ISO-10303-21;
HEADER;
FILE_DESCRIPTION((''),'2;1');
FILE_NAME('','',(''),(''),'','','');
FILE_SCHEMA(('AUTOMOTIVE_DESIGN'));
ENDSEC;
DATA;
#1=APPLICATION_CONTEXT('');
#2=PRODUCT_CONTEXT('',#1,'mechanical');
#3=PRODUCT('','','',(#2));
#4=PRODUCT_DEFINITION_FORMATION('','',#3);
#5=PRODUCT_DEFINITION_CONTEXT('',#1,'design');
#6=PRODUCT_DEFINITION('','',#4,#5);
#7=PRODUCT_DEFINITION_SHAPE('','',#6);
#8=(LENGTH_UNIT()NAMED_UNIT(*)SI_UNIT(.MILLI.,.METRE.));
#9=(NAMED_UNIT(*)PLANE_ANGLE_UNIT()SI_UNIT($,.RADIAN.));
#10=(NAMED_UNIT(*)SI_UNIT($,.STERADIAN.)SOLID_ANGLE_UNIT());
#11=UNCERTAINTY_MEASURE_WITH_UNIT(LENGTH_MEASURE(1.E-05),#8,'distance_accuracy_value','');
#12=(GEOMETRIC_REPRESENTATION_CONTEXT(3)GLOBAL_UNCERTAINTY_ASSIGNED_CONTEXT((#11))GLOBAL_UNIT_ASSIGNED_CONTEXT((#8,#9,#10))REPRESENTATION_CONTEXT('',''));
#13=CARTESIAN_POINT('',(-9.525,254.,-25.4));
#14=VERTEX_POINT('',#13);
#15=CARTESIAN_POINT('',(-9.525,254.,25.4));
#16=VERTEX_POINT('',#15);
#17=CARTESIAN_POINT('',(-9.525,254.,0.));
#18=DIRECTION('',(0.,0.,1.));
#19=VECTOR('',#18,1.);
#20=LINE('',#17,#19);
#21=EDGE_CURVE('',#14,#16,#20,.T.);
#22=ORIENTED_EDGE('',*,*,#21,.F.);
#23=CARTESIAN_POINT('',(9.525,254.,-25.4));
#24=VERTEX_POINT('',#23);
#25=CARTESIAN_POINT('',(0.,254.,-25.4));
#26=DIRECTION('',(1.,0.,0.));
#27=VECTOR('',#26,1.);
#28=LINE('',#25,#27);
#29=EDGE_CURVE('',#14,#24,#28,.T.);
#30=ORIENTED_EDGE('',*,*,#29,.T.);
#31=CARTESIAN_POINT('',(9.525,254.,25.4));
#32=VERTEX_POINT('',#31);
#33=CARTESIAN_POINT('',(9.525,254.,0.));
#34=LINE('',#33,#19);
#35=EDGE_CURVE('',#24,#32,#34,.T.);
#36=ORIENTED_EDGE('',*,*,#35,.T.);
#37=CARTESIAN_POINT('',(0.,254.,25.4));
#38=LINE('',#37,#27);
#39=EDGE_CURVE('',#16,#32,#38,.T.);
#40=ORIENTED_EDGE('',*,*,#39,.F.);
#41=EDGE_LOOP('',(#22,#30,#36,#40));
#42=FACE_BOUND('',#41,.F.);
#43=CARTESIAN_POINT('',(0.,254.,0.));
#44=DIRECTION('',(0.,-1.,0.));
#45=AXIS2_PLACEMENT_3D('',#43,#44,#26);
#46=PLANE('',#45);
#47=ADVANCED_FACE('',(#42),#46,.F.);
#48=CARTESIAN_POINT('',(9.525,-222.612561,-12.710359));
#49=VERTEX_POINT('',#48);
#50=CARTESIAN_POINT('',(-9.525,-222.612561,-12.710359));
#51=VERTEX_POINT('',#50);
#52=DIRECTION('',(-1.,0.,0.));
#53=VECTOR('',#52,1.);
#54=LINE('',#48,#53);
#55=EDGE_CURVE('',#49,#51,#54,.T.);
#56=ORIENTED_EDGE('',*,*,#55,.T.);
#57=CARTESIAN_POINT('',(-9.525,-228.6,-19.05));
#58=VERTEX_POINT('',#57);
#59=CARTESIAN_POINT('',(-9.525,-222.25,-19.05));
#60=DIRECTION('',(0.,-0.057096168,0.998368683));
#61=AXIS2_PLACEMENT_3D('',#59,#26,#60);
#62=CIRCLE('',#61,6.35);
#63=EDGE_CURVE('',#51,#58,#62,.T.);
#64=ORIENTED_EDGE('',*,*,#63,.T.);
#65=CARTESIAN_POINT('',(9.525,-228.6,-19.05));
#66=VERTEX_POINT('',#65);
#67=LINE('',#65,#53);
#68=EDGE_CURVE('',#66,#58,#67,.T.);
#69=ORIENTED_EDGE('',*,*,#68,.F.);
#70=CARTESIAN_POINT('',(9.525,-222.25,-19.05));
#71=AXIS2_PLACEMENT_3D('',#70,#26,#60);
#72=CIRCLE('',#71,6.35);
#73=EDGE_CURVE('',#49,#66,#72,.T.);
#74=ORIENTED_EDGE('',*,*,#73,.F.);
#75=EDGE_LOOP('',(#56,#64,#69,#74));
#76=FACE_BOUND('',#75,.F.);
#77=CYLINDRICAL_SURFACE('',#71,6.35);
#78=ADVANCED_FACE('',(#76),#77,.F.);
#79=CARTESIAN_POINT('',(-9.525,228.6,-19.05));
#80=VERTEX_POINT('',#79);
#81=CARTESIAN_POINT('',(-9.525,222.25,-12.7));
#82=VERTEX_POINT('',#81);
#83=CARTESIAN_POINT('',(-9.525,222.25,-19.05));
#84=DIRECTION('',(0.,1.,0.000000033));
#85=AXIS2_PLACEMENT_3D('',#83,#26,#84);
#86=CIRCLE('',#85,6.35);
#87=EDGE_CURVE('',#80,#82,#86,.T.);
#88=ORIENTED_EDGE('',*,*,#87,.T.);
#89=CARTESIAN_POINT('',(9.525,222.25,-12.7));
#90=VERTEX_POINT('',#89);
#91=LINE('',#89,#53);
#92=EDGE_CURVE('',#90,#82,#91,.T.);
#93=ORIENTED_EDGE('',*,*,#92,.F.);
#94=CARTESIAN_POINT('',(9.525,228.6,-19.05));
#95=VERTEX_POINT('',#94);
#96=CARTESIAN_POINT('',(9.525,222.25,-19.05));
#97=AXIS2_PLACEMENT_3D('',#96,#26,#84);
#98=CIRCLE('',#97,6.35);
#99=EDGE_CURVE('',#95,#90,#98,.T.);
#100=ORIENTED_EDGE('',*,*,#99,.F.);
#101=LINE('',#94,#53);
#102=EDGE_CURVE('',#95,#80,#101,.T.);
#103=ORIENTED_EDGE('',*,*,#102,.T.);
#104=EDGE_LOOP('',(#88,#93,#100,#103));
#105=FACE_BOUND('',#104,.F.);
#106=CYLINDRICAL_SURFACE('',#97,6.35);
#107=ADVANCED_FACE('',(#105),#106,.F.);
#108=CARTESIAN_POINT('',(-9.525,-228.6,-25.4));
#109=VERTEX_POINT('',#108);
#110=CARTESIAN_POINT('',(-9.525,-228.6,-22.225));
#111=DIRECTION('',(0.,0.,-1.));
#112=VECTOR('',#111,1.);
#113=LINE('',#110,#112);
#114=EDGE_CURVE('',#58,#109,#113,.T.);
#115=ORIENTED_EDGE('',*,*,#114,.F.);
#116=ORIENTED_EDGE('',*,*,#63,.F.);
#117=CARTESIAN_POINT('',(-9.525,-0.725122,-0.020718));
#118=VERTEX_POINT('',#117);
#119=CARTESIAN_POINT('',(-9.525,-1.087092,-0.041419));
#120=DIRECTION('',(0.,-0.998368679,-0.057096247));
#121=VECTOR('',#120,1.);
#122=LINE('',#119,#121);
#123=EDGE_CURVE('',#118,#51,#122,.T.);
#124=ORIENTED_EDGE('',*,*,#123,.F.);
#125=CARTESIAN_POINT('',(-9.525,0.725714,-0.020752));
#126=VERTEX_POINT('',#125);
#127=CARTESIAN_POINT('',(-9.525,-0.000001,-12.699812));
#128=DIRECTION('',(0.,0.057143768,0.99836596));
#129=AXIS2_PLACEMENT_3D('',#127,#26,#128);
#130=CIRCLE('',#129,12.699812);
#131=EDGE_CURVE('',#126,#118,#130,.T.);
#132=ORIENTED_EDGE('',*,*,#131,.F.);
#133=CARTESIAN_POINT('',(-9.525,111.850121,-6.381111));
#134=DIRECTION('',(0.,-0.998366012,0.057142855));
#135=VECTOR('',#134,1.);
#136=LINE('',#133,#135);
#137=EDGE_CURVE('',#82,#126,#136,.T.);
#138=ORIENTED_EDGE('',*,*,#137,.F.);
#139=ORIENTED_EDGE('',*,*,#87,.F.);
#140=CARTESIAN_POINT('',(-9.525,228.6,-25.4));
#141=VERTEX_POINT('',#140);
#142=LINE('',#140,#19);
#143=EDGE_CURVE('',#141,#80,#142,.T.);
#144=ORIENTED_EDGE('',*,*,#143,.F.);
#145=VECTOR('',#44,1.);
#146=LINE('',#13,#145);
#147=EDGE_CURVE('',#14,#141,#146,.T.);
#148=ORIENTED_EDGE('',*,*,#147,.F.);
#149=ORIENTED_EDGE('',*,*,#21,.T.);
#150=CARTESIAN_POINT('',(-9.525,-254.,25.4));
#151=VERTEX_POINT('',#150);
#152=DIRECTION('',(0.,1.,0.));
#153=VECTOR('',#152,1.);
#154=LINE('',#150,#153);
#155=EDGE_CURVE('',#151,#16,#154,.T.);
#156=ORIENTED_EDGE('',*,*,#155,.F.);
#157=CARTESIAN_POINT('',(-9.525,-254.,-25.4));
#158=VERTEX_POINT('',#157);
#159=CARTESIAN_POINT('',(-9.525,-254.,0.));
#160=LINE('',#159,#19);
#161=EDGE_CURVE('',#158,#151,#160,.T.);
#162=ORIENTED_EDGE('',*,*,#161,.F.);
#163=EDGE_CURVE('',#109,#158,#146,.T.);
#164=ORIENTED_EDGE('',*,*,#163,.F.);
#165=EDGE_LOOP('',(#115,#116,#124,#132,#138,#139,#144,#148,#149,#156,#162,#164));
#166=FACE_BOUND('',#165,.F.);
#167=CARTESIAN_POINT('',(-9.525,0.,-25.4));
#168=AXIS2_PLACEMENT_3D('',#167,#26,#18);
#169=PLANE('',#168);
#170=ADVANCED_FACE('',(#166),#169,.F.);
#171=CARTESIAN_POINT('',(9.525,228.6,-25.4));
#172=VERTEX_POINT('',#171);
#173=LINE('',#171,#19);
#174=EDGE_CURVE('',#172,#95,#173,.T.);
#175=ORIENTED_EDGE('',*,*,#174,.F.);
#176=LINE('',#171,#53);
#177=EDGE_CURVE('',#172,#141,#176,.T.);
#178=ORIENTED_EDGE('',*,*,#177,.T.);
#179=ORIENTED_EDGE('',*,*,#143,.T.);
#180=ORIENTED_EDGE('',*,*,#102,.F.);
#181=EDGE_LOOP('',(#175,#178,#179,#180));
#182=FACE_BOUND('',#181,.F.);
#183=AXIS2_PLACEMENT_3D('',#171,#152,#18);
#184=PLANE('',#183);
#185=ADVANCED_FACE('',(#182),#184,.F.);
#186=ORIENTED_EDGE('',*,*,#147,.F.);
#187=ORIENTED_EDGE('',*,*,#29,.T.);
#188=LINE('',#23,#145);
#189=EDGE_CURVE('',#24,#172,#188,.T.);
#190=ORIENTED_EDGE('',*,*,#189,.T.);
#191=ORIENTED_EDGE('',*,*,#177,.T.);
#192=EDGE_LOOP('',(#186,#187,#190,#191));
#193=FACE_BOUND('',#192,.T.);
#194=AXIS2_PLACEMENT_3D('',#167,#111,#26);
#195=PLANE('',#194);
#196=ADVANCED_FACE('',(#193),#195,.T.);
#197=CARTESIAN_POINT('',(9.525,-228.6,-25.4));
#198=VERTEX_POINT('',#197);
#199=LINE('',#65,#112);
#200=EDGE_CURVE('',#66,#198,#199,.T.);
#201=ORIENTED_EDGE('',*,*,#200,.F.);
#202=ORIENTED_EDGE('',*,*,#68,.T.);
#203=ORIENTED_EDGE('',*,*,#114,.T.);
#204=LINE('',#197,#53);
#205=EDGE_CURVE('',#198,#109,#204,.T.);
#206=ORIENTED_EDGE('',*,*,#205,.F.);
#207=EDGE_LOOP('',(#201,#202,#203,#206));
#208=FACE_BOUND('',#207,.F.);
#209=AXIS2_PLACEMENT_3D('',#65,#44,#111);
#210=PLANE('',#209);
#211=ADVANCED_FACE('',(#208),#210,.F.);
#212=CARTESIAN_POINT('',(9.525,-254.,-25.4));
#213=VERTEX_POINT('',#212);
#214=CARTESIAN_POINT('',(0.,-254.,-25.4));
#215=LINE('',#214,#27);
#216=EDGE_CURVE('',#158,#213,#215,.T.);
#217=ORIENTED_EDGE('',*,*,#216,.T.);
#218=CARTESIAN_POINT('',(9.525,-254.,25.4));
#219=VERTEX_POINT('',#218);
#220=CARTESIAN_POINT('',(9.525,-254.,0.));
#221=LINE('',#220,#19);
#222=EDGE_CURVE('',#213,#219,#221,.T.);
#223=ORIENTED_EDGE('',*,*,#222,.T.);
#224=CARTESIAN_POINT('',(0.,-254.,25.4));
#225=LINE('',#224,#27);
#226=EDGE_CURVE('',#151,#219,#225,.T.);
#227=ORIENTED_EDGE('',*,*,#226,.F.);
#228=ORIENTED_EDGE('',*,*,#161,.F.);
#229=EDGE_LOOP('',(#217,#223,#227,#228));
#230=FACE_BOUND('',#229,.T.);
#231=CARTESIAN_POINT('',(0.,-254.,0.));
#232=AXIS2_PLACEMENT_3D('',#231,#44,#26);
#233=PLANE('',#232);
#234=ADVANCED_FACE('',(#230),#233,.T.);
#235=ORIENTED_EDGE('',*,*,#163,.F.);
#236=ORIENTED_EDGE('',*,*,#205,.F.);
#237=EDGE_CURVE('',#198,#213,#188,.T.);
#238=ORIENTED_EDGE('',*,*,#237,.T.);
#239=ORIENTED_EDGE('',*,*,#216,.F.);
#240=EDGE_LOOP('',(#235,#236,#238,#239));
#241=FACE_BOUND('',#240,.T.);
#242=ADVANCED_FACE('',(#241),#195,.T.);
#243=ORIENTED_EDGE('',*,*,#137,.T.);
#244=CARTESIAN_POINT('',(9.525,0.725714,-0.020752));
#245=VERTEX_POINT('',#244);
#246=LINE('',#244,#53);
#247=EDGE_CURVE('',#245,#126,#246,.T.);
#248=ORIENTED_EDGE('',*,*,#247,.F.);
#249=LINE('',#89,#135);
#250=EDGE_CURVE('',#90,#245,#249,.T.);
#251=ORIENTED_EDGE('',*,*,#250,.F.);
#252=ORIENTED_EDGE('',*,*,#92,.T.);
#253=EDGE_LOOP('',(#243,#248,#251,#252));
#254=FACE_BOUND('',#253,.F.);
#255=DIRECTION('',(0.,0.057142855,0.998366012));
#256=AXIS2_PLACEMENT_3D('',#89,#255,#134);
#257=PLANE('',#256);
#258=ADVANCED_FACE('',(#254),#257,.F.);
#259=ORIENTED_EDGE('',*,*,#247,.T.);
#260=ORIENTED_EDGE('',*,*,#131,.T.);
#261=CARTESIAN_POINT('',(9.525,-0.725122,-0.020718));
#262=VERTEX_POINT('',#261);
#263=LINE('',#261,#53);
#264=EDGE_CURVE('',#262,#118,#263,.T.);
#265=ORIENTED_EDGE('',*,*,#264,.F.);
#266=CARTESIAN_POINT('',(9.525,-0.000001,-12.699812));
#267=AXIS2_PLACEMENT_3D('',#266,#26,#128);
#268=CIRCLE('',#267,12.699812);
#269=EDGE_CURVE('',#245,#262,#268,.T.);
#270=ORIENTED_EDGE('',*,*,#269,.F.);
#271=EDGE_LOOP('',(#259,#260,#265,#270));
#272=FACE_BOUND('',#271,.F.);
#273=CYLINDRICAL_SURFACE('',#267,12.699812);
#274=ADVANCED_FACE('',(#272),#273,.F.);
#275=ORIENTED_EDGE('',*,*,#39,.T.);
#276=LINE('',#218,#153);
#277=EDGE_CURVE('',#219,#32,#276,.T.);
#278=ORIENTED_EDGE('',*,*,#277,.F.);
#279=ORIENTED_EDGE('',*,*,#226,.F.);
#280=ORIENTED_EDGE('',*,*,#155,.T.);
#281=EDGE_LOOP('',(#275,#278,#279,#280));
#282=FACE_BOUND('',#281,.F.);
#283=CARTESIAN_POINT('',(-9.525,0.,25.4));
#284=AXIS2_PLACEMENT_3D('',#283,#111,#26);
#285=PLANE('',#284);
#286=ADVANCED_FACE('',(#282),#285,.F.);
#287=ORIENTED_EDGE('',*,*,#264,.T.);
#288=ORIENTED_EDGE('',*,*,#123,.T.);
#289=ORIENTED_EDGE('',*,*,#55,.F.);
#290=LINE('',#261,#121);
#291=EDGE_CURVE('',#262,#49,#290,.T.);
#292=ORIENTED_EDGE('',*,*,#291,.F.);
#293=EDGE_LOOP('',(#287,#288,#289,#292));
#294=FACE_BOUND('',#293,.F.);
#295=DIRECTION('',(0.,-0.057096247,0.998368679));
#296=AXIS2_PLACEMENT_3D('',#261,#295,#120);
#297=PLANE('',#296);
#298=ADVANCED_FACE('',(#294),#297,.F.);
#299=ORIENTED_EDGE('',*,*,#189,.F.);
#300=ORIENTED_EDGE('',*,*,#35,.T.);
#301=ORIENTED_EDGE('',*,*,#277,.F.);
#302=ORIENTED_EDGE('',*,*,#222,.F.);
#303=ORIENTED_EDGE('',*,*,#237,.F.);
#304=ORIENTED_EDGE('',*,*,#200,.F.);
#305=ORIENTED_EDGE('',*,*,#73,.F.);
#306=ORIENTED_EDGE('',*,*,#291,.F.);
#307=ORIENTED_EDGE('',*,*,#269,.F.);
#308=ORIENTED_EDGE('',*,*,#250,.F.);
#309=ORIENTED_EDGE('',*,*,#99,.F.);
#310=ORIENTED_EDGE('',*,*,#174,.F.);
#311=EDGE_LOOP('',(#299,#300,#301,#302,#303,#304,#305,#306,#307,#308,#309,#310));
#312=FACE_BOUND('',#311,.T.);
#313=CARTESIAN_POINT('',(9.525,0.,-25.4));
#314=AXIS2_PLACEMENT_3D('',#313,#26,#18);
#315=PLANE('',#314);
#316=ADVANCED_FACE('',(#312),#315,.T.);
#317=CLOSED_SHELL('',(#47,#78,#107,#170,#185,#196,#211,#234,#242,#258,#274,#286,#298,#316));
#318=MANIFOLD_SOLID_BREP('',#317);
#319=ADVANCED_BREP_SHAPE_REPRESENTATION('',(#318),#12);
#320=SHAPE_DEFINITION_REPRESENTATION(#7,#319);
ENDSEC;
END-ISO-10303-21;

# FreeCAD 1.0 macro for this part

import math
import FreeCAD as App
import Part
import Sketcher

V = App.Vector
Q = App.Units.Quantity

doc = App.newDocument("Part")
body = doc.addObject("PartDesign::Body", "Body")

# Sketch on XZ plane
sketch1 = body.newObject("Sketcher::SketchObject", "Sketch")
sketch1.AttachmentSupport = (doc.getObject("XZ_Plane"), [""])
sketch1.MapMode = "FlatFace"
sketch1.addGeometry(Part.LineSegment(V(-10, 25, 0), V(-10, -25, 0)), False)
sketch1.addGeometry(Part.LineSegment(V(-10, -25, 0), V(10, -25, 0)), False)
sketch1.addGeometry(Part.LineSegment(V(10, -25, 0), V(10, 25, 0)), False)
sketch1.addGeometry(Part.LineSegment(V(10, 25, 0), V(-10, 25, 0)), False)
sketch1.addConstraint(Sketcher.Constraint("Coincident", 0, 2, 1, 1))
sketch1.addConstraint(Sketcher.Constraint("Coincident", 1, 2, 2, 1))
sketch1.addConstraint(Sketcher.Constraint("Coincident", 2, 2, 3, 1))
sketch1.addConstraint(Sketcher.Constraint("Coincident", 3, 2, 0, 1))
sketch1.addConstraint(Sketcher.Constraint("Vertical", 0))
sketch1.addConstraint(Sketcher.Constraint("Horizontal", 1))
sketch1.addConstraint(Sketcher.Constraint("Vertical", 2))
sketch1.addConstraint(Sketcher.Constraint("Horizontal", 3))
sketch1.addConstraint(Sketcher.Constraint("Symmetric", 0, 2, 2, 2, -1, 1))
sketch1.addConstraint(Sketcher.Constraint("DistanceY", 0, 2, 0, 1, Q("2 in")))
sketch1.addConstraint(Sketcher.Constraint("DistanceX", 1, 1, 1, 2, Q("0.75 in")))
pad1 = body.newObject("PartDesign::Pad", "Pad")
pad1.Profile = sketch1
pad1.Length = Q("20 in")
pad1.Midplane = True

# Sketch on YZ plane
sketch2 = body.newObject("Sketcher::SketchObject", "Sketch001")
sketch2.AttachmentSupport = (doc.getObject("YZ_Plane"), [""])
sketch2.MapMode = "FlatFace"
sketch2.AttachmentOffset = App.Placement(V(0, 0, 0.375 * 25.4), App.Rotation())
sketch2.addGeometry(Part.ArcOfCircle(Part.Circle(V(-0.000001, -12.699812, 0), V(0, 0, 1), 12.699812), math.radians(86.724119), math.radians(93.273196)), False)
sketch2.addGeometry(Part.LineSegment(V(-0.725122, -0.020718, 0), V(-222.612561, -12.710359, 0)), False)
sketch2.addGeometry(Part.ArcOfCircle(Part.Circle(V(-222.25, -19.05, 0), V(0, 0, 1), 6.35), math.radians(93.273149), math.radians(180.000002)), False)
sketch2.addGeometry(Part.LineSegment(V(-228.6, -19.05, 0), V(-228.6, -25.4, 0)), False)
sketch2.addGeometry(Part.LineSegment(V(-228.6, -25.4, 0), V(228.6, -25.4, 0)), False)
sketch2.addGeometry(Part.LineSegment(V(228.6, -25.4, 0), V(228.6, -19.05, 0)), False)
sketch2.addGeometry(Part.ArcOfCircle(Part.Circle(V(222.25, -19.05, 0), V(0, 0, 1), 6.35), math.radians(0.000002), math.radians(89.999998)), False)
sketch2.addGeometry(Part.LineSegment(V(222.25, -12.7, 0), V(0.725714, -0.020752, 0)), False)
sketch2.addConstraint(Sketcher.Constraint("Coincident", 0, 2, 1, 1))
sketch2.addConstraint(Sketcher.Constraint("Coincident", 1, 2, 2, 1))
sketch2.addConstraint(Sketcher.Constraint("Coincident", 2, 2, 3, 1))
sketch2.addConstraint(Sketcher.Constraint("Coincident", 3, 2, 4, 1))
sketch2.addConstraint(Sketcher.Constraint("Coincident", 4, 2, 5, 1))
sketch2.addConstraint(Sketcher.Constraint("Coincident", 5, 2, 6, 1))
sketch2.addConstraint(Sketcher.Constraint("Coincident", 6, 2, 7, 1))
sketch2.addConstraint(Sketcher.Constraint("Coincident", 7, 2, 0, 1))
sketch2.addConstraint(Sketcher.Constraint("Vertical", 3))
sketch2.addConstraint(Sketcher.Constraint("Horizontal", 4))
sketch2.addConstraint(Sketcher.Constraint("Vertical", 5))
sketch2.addConstraint(Sketcher.Constraint("PointOnObject", 0, 3, -2))
sketch2.addConstraint(Sketcher.Constraint("DistanceX", 4, 1, 4, 2, Q("18 in")))
sketch2.addConstraint(Sketcher.Constraint("Radius", 2, Q("0.25 in")))
sketch2.addConstraint(Sketcher.Constraint("Radius", 6, Q("0.25 in")))
sketch2.addConstraint(Sketcher.Constraint("DistanceX", 2, 2, -1, 1, Q("9 in")))
sketch2.addConstraint(Sketcher.Constraint("DistanceY", 3, 2, -1, 1, Q("1 in")))
sketch2.addConstraint(Sketcher.Constraint("DistanceY", 3, 2, 3, 1, Q("0.25 in")))
sketch2.addConstraint(Sketcher.Constraint("DistanceY", 5, 1, 5, 2, Q("0.25 in")))
sketch2.addConstraint(Sketcher.Constraint("DistanceY", 6, 2, -1, 1, Q("0.5 in")))
sketch2.addConstraint(Sketcher.Constraint("Distance", 1, Q("8.75 in")))
sketch2.addConstraint(Sketcher.Constraint("DistanceY", 2, 3, -1, 1, Q("0.75 in")))
sketch2.addConstraint(Sketcher.Constraint("DistanceX", -1, 1, 6, 2, Q("8.75 in")))
sketch2.addConstraint(Sketcher.Constraint("Radius", 0, Q("12.699812 mm")))
sketch2.addConstraint(Sketcher.Constraint("DistanceX", 0, 2, -1, 1, Q("0.725122 mm")))
sketch2.addConstraint(Sketcher.Constraint("DistanceY", 0, 2, -1, 1, Q("0.020718 mm")))
sketch2.addConstraint(Sketcher.Constraint("DistanceY", 7, 2, -1, 1, Q("0.020752 mm")))
pocket1 = body.newObject("PartDesign::Pocket", "Pocket")
pocket1.Profile = sketch2
pocket1.Type = "ThroughAll"

doc.recompute()
